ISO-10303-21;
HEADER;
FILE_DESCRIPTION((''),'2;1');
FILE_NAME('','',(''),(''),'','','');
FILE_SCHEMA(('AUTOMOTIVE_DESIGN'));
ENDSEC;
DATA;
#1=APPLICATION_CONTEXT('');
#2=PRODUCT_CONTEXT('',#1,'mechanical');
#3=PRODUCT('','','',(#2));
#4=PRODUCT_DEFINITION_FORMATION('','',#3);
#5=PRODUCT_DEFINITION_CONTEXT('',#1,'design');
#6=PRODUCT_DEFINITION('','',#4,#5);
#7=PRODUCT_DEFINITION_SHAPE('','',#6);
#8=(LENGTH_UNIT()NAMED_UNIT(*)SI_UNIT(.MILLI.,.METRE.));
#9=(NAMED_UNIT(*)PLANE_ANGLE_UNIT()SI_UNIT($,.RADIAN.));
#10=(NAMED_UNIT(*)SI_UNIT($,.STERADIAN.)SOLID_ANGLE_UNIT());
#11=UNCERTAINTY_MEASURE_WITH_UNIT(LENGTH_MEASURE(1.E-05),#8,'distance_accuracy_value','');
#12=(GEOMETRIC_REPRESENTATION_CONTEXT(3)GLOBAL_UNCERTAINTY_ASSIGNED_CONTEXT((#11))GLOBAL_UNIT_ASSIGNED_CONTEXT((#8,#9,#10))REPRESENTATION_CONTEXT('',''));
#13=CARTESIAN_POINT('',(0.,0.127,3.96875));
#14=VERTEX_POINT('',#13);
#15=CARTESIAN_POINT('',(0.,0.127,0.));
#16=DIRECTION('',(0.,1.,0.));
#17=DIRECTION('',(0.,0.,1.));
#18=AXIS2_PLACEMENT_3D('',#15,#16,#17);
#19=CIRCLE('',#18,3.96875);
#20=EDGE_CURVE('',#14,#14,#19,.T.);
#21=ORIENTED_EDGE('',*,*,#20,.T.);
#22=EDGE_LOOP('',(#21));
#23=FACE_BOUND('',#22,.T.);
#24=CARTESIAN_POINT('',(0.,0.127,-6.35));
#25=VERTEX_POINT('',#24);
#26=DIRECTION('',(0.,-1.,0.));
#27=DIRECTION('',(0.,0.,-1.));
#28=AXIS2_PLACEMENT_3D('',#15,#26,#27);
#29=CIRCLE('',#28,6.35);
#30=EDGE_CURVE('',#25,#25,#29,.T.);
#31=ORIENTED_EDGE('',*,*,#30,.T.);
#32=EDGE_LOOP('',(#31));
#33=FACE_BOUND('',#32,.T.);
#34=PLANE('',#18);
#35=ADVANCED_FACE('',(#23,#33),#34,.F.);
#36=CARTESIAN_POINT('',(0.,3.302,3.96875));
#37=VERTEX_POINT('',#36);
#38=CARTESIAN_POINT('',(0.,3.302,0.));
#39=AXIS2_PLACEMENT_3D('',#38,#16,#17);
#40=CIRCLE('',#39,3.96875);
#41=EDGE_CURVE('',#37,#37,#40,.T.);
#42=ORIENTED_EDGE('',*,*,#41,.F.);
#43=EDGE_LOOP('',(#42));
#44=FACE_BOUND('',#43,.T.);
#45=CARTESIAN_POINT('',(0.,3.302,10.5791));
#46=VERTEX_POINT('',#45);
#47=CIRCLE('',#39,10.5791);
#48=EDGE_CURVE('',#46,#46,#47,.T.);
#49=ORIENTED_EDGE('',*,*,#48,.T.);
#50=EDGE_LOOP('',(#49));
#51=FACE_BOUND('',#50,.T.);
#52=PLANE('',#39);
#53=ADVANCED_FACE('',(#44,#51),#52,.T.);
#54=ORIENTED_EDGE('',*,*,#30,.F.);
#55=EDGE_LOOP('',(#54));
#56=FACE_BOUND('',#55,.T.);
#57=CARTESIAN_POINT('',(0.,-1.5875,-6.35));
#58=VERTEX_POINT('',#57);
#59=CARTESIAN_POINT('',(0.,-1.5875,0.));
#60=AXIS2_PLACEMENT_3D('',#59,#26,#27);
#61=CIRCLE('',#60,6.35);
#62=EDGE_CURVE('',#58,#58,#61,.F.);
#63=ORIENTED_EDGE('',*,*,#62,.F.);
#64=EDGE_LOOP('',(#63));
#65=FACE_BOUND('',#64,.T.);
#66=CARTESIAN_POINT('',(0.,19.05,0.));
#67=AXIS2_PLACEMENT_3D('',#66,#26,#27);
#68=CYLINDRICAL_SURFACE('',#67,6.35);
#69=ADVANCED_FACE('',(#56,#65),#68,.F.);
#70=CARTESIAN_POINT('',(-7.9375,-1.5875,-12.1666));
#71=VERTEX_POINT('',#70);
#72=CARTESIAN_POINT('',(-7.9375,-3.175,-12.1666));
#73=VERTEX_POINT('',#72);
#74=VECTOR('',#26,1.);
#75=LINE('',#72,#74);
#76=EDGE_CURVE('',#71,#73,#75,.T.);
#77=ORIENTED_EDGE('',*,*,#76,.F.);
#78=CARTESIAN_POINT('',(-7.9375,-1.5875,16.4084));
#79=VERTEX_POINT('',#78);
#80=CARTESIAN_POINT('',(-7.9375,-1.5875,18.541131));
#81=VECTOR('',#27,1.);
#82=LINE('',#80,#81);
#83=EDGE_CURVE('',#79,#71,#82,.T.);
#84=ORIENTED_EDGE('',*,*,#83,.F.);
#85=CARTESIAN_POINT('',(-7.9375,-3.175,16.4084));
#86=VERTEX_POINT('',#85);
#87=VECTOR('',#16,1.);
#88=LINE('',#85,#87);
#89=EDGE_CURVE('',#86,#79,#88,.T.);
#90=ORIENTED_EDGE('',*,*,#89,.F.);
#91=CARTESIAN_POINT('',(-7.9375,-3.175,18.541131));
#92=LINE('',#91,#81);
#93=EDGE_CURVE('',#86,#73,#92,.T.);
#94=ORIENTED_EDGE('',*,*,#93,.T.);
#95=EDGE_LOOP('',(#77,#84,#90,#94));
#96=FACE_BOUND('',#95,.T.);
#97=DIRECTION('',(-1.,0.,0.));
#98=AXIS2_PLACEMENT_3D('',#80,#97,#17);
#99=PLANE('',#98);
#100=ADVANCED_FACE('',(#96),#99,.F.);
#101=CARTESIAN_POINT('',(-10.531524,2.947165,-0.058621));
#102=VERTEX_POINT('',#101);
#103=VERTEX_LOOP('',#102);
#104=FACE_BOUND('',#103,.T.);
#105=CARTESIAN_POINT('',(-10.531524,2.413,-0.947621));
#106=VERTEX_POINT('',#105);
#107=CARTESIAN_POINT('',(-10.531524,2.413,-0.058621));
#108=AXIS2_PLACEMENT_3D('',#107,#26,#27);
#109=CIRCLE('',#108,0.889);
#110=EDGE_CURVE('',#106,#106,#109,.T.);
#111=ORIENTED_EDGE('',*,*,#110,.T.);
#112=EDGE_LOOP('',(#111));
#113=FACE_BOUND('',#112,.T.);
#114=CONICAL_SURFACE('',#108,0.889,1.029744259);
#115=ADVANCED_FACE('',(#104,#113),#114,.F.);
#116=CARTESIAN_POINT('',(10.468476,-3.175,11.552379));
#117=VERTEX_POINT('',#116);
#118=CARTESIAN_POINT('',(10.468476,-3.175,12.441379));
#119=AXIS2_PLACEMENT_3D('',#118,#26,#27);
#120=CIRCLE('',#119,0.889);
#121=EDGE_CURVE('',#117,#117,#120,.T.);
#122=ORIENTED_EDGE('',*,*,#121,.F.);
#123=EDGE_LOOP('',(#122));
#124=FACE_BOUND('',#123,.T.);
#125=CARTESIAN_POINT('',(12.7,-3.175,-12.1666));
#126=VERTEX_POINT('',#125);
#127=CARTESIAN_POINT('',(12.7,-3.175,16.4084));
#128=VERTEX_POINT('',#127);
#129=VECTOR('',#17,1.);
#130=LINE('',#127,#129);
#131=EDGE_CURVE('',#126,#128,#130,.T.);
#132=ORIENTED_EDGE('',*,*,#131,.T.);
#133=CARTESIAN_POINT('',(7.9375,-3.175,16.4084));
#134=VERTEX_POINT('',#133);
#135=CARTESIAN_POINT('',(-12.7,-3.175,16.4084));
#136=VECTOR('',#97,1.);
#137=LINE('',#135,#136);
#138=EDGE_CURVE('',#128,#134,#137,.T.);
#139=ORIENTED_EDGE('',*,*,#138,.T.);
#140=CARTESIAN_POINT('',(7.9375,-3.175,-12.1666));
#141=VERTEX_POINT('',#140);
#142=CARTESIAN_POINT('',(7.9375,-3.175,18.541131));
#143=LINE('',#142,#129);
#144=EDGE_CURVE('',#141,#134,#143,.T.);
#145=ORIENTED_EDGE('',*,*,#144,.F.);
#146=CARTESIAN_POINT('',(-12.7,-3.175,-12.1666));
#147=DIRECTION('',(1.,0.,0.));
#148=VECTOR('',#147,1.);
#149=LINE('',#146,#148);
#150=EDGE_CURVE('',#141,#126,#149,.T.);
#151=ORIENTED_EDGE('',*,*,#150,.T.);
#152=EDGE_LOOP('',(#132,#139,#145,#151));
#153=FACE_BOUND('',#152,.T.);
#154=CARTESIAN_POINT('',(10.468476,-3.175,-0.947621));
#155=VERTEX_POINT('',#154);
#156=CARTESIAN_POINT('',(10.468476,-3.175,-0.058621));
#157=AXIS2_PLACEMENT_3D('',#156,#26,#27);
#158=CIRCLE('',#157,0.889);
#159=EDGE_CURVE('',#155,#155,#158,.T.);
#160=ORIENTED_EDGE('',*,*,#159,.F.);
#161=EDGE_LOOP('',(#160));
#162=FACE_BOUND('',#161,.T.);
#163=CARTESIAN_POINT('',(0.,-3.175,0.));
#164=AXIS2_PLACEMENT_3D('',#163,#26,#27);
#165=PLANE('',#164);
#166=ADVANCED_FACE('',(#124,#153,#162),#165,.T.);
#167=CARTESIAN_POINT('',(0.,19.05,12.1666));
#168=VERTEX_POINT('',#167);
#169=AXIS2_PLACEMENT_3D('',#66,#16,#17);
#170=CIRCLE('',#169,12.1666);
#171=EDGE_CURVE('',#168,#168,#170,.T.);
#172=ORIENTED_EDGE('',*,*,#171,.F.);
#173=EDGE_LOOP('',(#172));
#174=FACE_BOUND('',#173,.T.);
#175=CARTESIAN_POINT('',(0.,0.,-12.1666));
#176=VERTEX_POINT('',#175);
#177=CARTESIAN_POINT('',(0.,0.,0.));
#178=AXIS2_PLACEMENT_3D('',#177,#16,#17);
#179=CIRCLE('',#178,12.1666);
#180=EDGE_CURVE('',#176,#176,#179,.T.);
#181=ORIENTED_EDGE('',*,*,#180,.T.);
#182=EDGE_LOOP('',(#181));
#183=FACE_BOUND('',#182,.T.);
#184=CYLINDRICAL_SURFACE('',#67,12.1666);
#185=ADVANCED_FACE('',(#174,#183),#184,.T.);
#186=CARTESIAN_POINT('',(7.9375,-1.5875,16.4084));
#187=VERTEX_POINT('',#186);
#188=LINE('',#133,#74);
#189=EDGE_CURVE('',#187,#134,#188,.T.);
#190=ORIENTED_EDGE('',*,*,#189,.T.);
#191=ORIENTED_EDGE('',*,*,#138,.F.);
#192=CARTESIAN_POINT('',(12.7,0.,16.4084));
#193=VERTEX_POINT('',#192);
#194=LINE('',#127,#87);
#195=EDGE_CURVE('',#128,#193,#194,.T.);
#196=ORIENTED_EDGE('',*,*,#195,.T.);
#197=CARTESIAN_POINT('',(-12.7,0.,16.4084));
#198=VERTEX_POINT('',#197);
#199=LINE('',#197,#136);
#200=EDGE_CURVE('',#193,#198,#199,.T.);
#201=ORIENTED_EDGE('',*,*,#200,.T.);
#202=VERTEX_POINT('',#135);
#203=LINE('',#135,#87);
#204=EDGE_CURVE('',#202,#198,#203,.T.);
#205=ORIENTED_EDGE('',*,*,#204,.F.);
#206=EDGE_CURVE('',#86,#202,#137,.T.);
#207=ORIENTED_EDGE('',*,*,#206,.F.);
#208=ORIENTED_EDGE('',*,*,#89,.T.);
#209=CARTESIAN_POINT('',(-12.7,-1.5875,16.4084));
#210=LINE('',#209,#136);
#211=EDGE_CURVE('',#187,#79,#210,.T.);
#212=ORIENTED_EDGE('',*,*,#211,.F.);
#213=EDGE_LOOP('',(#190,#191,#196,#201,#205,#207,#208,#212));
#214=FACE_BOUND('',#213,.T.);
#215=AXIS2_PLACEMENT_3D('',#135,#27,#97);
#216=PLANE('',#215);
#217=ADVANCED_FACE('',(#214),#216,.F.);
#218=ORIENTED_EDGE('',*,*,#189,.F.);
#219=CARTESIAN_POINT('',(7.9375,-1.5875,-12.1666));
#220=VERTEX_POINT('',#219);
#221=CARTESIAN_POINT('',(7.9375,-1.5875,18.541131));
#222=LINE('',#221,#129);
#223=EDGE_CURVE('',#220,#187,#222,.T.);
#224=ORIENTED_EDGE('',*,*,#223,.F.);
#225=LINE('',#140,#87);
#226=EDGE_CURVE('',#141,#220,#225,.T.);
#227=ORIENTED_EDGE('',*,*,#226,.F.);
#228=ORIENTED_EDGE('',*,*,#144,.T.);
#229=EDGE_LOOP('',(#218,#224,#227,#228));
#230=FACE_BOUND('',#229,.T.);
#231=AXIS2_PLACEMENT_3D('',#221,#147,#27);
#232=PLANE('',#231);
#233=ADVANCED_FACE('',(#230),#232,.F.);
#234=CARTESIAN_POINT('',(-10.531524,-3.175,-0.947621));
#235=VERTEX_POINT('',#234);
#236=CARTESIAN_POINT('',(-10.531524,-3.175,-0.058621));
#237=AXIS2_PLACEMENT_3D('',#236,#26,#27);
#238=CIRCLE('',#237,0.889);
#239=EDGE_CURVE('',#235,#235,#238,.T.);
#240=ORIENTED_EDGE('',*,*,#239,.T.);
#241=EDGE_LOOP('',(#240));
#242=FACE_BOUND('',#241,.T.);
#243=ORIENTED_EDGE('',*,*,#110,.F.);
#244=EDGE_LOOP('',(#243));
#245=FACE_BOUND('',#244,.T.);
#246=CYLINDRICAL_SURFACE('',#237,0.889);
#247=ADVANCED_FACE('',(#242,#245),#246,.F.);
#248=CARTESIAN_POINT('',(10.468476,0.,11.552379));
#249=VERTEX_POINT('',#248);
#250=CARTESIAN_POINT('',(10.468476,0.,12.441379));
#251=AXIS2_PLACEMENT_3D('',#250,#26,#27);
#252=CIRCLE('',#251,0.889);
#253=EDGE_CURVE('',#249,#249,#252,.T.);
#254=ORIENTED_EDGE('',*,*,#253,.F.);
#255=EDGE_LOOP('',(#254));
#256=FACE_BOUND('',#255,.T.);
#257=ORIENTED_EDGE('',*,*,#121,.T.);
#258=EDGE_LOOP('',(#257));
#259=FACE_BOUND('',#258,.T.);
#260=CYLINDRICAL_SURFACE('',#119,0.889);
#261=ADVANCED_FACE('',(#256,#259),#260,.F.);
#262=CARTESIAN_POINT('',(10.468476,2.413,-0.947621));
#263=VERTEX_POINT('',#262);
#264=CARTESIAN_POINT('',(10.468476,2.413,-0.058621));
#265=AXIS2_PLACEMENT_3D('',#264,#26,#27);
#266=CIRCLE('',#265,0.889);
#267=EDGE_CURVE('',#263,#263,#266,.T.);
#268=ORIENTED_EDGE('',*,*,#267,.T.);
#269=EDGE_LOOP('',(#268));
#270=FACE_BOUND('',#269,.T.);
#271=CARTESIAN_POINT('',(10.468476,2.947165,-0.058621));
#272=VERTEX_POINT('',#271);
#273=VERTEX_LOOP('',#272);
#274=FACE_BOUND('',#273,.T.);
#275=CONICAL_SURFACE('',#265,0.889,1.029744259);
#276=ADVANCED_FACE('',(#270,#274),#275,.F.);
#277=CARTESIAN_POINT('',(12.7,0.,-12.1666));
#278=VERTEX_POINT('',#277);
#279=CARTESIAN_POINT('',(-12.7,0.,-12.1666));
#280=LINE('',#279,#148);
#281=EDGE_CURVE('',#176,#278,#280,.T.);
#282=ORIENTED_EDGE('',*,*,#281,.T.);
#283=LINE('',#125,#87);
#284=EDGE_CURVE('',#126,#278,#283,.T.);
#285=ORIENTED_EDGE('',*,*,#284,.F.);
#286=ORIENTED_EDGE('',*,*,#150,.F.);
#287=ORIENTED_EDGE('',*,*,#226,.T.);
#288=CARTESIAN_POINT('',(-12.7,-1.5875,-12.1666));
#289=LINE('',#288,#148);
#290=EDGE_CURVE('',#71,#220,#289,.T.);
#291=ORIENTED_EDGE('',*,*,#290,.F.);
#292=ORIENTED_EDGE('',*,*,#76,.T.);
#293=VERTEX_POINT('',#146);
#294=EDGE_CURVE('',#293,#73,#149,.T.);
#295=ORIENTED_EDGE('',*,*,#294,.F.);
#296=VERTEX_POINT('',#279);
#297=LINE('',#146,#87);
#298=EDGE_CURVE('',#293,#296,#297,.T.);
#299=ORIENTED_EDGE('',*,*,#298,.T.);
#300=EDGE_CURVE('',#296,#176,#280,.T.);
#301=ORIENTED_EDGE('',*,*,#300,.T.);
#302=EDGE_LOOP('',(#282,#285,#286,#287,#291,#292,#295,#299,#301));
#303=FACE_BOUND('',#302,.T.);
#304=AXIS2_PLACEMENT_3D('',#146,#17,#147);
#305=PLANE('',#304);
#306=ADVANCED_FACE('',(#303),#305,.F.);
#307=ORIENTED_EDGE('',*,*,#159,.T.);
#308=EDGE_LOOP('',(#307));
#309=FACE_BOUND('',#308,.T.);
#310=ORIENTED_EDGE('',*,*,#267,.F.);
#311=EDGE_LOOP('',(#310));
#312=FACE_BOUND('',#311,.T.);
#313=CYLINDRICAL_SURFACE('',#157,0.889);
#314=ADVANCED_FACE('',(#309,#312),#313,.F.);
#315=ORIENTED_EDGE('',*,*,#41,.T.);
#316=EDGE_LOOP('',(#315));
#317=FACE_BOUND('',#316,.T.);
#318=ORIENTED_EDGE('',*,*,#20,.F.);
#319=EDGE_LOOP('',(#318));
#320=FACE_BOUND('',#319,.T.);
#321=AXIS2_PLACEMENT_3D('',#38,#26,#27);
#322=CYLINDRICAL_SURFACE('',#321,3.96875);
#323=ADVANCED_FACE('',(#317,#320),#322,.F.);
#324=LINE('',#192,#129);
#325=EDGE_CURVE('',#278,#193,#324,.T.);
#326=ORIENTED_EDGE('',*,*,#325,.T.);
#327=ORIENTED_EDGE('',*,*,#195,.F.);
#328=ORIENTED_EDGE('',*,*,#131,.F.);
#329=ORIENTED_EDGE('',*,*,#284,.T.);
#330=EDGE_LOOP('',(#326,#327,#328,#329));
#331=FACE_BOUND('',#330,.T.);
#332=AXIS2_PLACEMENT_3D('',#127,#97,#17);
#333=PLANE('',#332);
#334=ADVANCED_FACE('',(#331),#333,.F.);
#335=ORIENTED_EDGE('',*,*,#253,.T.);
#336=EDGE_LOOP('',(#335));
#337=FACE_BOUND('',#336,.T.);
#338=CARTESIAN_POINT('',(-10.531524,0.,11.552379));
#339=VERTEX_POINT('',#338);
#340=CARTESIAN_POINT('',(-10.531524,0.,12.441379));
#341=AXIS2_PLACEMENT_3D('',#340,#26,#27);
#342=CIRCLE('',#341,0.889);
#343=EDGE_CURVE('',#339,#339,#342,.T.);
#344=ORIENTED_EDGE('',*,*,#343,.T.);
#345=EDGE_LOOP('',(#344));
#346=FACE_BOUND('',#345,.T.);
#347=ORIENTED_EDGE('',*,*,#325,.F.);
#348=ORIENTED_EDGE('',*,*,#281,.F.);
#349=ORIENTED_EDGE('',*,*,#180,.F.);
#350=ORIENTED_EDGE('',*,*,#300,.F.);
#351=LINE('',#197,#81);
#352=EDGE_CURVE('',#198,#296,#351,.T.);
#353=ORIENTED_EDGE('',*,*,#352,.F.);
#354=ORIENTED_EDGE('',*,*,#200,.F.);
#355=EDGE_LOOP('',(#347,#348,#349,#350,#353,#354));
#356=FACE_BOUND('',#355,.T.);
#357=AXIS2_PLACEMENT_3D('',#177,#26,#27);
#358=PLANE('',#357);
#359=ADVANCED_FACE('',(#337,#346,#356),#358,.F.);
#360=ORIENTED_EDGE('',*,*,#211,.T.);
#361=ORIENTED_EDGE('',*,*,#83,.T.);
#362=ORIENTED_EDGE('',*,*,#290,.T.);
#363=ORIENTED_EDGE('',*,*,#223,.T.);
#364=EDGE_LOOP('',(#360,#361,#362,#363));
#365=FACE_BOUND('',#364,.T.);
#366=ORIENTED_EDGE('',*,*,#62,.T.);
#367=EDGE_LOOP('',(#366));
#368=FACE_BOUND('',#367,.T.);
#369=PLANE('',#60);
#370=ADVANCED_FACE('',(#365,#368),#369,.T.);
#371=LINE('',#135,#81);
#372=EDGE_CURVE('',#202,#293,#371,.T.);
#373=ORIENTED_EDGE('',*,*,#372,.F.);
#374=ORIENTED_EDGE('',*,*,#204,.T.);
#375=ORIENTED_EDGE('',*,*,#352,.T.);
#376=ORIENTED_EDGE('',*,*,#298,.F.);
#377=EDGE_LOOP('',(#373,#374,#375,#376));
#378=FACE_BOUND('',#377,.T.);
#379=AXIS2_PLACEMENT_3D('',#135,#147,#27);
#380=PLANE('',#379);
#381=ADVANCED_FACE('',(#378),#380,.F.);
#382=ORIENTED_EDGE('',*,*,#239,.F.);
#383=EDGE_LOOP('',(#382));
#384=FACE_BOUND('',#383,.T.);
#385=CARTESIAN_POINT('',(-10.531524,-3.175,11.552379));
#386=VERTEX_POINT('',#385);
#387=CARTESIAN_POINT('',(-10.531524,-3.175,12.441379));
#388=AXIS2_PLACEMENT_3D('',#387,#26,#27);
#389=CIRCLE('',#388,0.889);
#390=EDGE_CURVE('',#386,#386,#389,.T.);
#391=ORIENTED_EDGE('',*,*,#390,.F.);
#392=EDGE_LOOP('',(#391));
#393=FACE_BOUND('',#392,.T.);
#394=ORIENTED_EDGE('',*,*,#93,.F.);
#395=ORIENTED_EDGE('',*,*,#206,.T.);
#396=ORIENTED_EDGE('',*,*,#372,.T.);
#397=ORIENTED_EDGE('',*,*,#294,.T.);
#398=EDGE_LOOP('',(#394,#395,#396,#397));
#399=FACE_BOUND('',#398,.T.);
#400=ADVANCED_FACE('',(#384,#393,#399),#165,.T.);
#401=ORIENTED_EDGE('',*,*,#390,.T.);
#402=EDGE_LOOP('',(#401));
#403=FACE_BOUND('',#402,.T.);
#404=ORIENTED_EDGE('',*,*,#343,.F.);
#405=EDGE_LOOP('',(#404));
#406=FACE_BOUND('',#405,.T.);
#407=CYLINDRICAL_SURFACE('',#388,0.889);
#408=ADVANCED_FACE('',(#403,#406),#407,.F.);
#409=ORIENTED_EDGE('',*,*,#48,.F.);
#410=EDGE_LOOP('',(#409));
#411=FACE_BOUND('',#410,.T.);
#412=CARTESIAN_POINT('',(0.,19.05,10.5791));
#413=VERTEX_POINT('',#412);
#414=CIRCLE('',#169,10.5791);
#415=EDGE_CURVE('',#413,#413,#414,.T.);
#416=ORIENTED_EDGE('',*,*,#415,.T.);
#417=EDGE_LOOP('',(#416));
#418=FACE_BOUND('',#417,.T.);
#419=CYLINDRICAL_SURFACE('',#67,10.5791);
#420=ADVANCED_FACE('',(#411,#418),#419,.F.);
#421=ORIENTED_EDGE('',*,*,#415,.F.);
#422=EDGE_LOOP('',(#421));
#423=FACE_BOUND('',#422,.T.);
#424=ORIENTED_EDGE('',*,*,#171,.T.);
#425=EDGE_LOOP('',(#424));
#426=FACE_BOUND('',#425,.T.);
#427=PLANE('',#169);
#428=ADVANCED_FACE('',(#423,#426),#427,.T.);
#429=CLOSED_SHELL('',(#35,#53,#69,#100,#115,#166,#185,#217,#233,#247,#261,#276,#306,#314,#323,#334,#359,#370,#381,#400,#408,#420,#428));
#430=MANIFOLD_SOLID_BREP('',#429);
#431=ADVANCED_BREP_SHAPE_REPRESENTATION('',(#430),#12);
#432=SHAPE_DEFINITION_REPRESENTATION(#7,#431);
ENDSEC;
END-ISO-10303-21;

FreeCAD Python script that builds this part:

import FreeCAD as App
import Part
import Sketcher

V = App.Vector
Q = App.Units.Quantity


def add_polygon(sketch, points):
    """Adds a closed chain of lines whose ends are joined by coincident constraints."""
    first, n = sketch.GeometryCount, len(points)
    for a, b in zip(points, points[1:] + points[:1]):
        sketch.addGeometry(Part.LineSegment(App.Vector(*a, 0), App.Vector(*b, 0)), False)
    for i in range(n):
        sketch.addConstraint(Sketcher.Constraint("Coincident", first + i, 2, first + (i + 1) % n, 1))

doc = App.newDocument("Part")
body = doc.addObject("PartDesign::Body", "Body")

sketch1 = body.newObject("Sketcher::SketchObject", "Sketch")
sketch1.AttachmentSupport = (doc.getObject("XZ_Plane"), [""])
sketch1.MapMode = "FlatFace"
sketch1.addGeometry([
    Part.Circle(V(0, 0, 0), V(0, 0, 1), 12),
    Part.Circle(V(0, 0, 0), V(0, 0, 1), 11),
], False)
sketch1.addConstraint([
    Sketcher.Constraint("Coincident", 0, 3, -1, 1),
    Sketcher.Constraint("Coincident", 1, 3, -1, 1),
    Sketcher.Constraint("Diameter", 0, Q("0.958 in")),
    Sketcher.Constraint("Diameter", 1, Q("0.833 in")),
])
pad1 = body.newObject("PartDesign::Pad", "Pad")
pad1.Profile = sketch1
pad1.Length = Q("0.75 in")
pad1.Reversed = True

sketch2 = body.newObject("Sketcher::SketchObject", "Sketch001")
sketch2.AttachmentSupport = (doc.getObject("XZ_Plane"), [""])
sketch2.MapMode = "FlatFace"
add_polygon(sketch2, [(-13, 16), (-13, -12), (13, -12), (13, 16)])
sketch2.addConstraint([
    Sketcher.Constraint("Vertical", 0),
    Sketcher.Constraint("Horizontal", 1),
    Sketcher.Constraint("Vertical", 2),
    Sketcher.Constraint("Horizontal", 3),
    Sketcher.Constraint("DistanceX", 1, 1, 1, 2, Q("1 in")),
    Sketcher.Constraint("DistanceX", 0, 2, -1, 1, Q("0.5 in")),
    Sketcher.Constraint("DistanceY", 0, 2, 0, 1, Q("1.125 in")),
    Sketcher.Constraint("DistanceY", 0, 2, -1, 1, Q("0.479 in")),
])
pad2 = body.newObject("PartDesign::Pad", "Pad001")
pad2.Profile = sketch2
pad2.Length = Q("0.125 in")

sketch3 = body.newObject("Sketcher::SketchObject", "Sketch002")
sketch3.AttachmentSupport = (doc.getObject("XZ_Plane"), [""])
sketch3.MapMode = "FlatFace"
sketch3.AttachmentOffset = App.Placement(V(0, 0, 0.125 * 25.4), App.Rotation())
sketch3.addGeometry(Part.Circle(V(0, 0, 0), V(0, 0, 1), 6), False)
sketch3.addConstraint([
    Sketcher.Constraint("Coincident", 0, 3, -1, 1),
    Sketcher.Constraint("Diameter", 0, Q("0.5 in")),
])
pocket1 = body.newObject("PartDesign::Pocket", "Pocket")
pocket1.Profile = sketch3
pocket1.Type = "ThroughAll"

sketch4 = body.newObject("Sketcher::SketchObject", "Sketch003")
sketch4.AttachmentSupport = (doc.getObject("XZ_Plane"), [""])
sketch4.MapMode = "FlatFace"
sketch4.addGeometry([
    Part.Circle(V(0, 0, 0), V(0, 0, 1), 11),
    Part.Circle(V(0, 0, 0), V(0, 0, 1), 6),
], False)
sketch4.addConstraint([
    Sketcher.Constraint("Coincident", 0, 3, -1, 1),
    Sketcher.Constraint("Coincident", 1, 3, -1, 1),
    Sketcher.Constraint("Diameter", 1, Q("0.5 in")),
    Sketcher.Constraint("Diameter", 0, Q("0.833 in")),
])
pad3 = body.newObject("PartDesign::Pad", "Pad002")
pad3.Profile = sketch4
pad3.Length = Q("0.005 in")
pad3.Reversed = True

sketch5 = body.newObject("Sketcher::SketchObject", "Sketch004")
sketch5.AttachmentSupport = (doc.getObject("XZ_Plane"), [""])
sketch5.MapMode = "FlatFace"
sketch5.AttachmentOffset = App.Placement(V(0, 0, -0.005 * 25.4), App.Rotation())
sketch5.addGeometry([
    Part.Circle(V(0, 0, 0), V(0, 0, 1), 10.6),
    Part.Circle(V(0, 0, 0), V(0, 0, 1), 4),
], False)
sketch5.addConstraint([
    Sketcher.Constraint("Coincident", 0, 3, -1, 1),
    Sketcher.Constraint("Coincident", 1, 3, -1, 1),
    Sketcher.Constraint("Diameter", 0, Q("0.833 in")),
    Sketcher.Constraint("Diameter", 1, Q("0.3125 in")),
])
pad4 = body.newObject("PartDesign::Pad", "Pad003")
pad4.Profile = sketch5
pad4.Length = Q("0.125 in")
pad4.Reversed = True

sketch6 = body.newObject("Sketcher::SketchObject", "Sketch005")
sketch6.AttachmentSupport = (doc.getObject("XZ_Plane"), [""])
sketch6.MapMode = "FlatFace"
sketch6.AttachmentOffset = App.Placement(V(0, 0, 0.125 * 25.4), App.Rotation())
sketch6.addGeometry([
    Part.Circle(V(-10.5, 12.4, 0), V(0, 0, 1), 0.9),
    Part.Circle(V(-10.5, -0.1, 0), V(0, 0, 1), 0.9),
    Part.Circle(V(10.5, 12.4, 0), V(0, 0, 1), 0.9),
    Part.Circle(V(10.5, -0.1, 0), V(0, 0, 1), 0.9),
], False)
sketch6.addConstraint([
    Sketcher.Constraint("Equal", 0, 1),
    Sketcher.Constraint("Equal", 1, 2),
    Sketcher.Constraint("Equal", 2, 3),
    Sketcher.Constraint("Horizontal", 0, 3, 2, 3),
    Sketcher.Constraint("Horizontal", 1, 3, 3, 3),
    Sketcher.Constraint("Vertical", 0, 3, 1, 3),
    Sketcher.Constraint("Vertical", 2, 3, 3, 3),
    Sketcher.Constraint("Diameter", 0, Q("0.07 in")),
    Sketcher.Constraint("DistanceY", 1, 3, 0, 3, Q("12.5 mm")),
    Sketcher.Constraint("DistanceX", 0, 3, 2, 3, Q("21 mm")),
    Sketcher.Constraint("DistanceY", -1, 1, 0, 3, Q("12.441379 mm")),
    Sketcher.Constraint("DistanceX", 0, 3, -1, 1, Q("10.531524 mm")),
])
doc.recompute()
hole = body.newObject("PartDesign::Hole", "Hole")
hole.Profile = sketch6
hole.ThreadType = "None"
hole.Diameter = Q("0.07 in")
hole.DepthType = "Dimension"
hole.Depth = Q("0.22 in")
hole.DrillPoint = "Angled"
hole.DrillPointAngle = 118

sketch7 = body.newObject("Sketcher::SketchObject", "Sketch006")
sketch7.AttachmentSupport = (doc.getObject("XZ_Plane"), [""])
sketch7.MapMode = "FlatFace"
sketch7.AttachmentOffset = App.Placement(V(0, 0, 0.125 * 25.4), App.Rotation())
add_polygon(sketch7, [(-8, 19), (-8, -19), (8, -19), (8, 19)])
sketch7.addConstraint([
    Sketcher.Constraint("Vertical", 0),
    Sketcher.Constraint("Horizontal", 1),
    Sketcher.Constraint("Vertical", 2),
    Sketcher.Constraint("Horizontal", 3),
    Sketcher.Constraint("Symmetric", 0, 2, 2, 2, -1, 1),
    Sketcher.Constraint("DistanceX", 1, 1, 1, 2, Q("0.625 in")),
    Sketcher.Constraint("DistanceY", 0, 2, 0, 1, Q("37.082263 mm")),
])
pocket2 = body.newObject("PartDesign::Pocket", "Pocket001")
pocket2.Profile = sketch7
pocket2.Length = Q("0.0625 in")

doc.recompute()
